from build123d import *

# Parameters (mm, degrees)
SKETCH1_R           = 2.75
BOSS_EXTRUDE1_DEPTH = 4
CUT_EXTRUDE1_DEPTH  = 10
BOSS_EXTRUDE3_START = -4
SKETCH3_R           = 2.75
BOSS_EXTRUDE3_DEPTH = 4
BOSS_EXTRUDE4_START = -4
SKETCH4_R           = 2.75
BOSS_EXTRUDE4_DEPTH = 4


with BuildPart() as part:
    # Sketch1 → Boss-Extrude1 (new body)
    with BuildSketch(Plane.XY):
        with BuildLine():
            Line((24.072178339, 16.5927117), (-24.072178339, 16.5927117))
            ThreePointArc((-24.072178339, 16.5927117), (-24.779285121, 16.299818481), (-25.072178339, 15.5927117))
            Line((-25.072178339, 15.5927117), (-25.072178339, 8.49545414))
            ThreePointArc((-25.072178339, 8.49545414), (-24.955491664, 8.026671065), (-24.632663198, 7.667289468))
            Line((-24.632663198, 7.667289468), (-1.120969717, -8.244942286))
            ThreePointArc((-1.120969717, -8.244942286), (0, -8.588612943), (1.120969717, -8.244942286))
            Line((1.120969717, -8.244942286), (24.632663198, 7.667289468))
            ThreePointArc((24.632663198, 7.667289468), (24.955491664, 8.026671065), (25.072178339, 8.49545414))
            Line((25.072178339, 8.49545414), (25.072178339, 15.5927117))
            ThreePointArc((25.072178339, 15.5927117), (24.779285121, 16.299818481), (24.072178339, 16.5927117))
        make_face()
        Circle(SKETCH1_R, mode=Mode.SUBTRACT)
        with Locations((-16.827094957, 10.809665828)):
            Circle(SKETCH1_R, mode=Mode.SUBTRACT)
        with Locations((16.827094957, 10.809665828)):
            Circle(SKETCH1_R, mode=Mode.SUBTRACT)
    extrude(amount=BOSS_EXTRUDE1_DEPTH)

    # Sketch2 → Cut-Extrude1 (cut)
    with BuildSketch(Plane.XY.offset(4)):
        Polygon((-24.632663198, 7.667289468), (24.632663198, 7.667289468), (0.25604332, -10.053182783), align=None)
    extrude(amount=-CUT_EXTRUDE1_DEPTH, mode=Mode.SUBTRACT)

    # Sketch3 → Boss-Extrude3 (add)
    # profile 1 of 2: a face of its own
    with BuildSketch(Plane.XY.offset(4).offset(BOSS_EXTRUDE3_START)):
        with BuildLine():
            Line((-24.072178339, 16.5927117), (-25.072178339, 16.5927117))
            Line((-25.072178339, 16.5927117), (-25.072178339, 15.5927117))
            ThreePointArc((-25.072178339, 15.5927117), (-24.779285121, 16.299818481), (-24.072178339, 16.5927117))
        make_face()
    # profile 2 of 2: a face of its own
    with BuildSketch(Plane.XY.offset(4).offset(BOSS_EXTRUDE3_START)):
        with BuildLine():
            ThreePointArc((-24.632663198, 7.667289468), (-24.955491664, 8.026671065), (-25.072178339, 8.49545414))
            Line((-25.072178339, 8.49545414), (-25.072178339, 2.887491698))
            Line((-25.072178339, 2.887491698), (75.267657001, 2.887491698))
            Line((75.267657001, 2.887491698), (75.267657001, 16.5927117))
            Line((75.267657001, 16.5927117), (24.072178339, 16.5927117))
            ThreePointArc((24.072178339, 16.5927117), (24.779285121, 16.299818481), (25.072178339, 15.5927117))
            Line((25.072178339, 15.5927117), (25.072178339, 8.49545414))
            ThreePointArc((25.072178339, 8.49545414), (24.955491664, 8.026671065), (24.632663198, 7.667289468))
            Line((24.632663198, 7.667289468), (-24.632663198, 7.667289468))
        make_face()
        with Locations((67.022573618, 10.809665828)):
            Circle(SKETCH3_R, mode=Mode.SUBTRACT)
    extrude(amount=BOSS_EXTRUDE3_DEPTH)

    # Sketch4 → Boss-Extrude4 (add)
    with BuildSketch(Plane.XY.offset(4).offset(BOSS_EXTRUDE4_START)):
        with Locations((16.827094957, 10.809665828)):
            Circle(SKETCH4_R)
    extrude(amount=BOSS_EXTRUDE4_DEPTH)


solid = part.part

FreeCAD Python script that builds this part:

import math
import FreeCAD as App
import Part
import Sketcher

V = App.Vector


def add_polygon(sketch, points):
    """Adds a closed chain of lines whose ends are joined by coincident constraints."""
    first, n = sketch.GeometryCount, len(points)
    for a, b in zip(points, points[1:] + points[:1]):
        sketch.addGeometry(Part.LineSegment(App.Vector(*a, 0), App.Vector(*b, 0)), False)
    for i in range(n):
        sketch.addConstraint(Sketcher.Constraint("Coincident", first + i, 2, first + (i + 1) % n, 1))

doc = App.newDocument("Part")
body = doc.addObject("PartDesign::Body", "Body")

sketch1 = doc.addObject("Sketcher::SketchObject", "Sketch")
body.addObject(sketch1)
sketch1.AttachmentSupport = (doc.XY_Plane, [""])
sketch1.MapMode = "FlatFace"
sketch1.addGeometry([
    Part.LineSegment(V(24.1, 16.6, 0), V(-24.1, 16.6, 0)),
    Part.ArcOfCircle(Part.Circle(V(-24.1, 15.6, 0), V(0, 0, 1), 1), math.radians(90), math.radians(180)),
    Part.LineSegment(V(-25.1, 15.6, 0), V(-25.1, 8.5, 0)),
    Part.ArcOfCircle(Part.Circle(V(-24.1, 8.5, 0), V(0, 0, 1), 1), math.radians(180), math.radians(236)),
    Part.LineSegment(V(-24.6, 7.7, 0), V(-1.1, -8.2, 0)),
    Part.ArcOfCircle(Part.Circle(V(0, -6.6, 0), V(0, 0, 1), 2), math.radians(-124), math.radians(-56)),
    Part.LineSegment(V(1.1, -8.2, 0), V(24.6, 7.7, 0)),
    Part.ArcOfCircle(Part.Circle(V(24.1, 8.5, 0), V(0, 0, 1), 1), math.radians(-56), math.radians(0)),
    Part.LineSegment(V(25.1, 8.5, 0), V(25.1, 15.6, 0)),
    Part.ArcOfCircle(Part.Circle(V(24.1, 15.6, 0), V(0, 0, 1), 1), math.radians(0), math.radians(90)),
    Part.Circle(V(0, 0, 0), V(0, 0, 1), 2.8),
    Part.Circle(V(-16.8, 10.8, 0), V(0, 0, 1), 2.8),
    Part.Circle(V(16.8, 10.8, 0), V(0, 0, 1), 2.8),
], False)
sketch1.addConstraint([
    Sketcher.Constraint("Tangent", 0, 2, 1, 1),
    Sketcher.Constraint("Tangent", 1, 2, 2, 1),
    Sketcher.Constraint("Tangent", 2, 2, 3, 1),
    Sketcher.Constraint("Tangent", 3, 2, 4, 1),
    Sketcher.Constraint("Tangent", 4, 2, 5, 1),
    Sketcher.Constraint("Tangent", 5, 2, 6, 1),
    Sketcher.Constraint("Tangent", 6, 2, 7, 1),
    Sketcher.Constraint("Tangent", 7, 2, 8, 1),
    Sketcher.Constraint("Tangent", 8, 2, 9, 1),
    Sketcher.Constraint("Tangent", 9, 2, 0, 1),
    Sketcher.Constraint("Horizontal", 0),
    Sketcher.Constraint("Vertical", 2),
    Sketcher.Constraint("Vertical", 8),
    Sketcher.Constraint("Coincident", 10, 3, -1, 1),
    Sketcher.Constraint("Equal", 1, 3),
    Sketcher.Constraint("Equal", 3, 7),
    Sketcher.Constraint("Equal", 7, 9),
    Sketcher.Constraint("Equal", 10, 11),
    Sketcher.Constraint("Equal", 11, 12),
    Sketcher.Constraint("Symmetric", 3, 3, 7, 3, -2),
    Sketcher.Constraint("Symmetric", 11, 3, 12, 3, -2),
    Sketcher.Constraint("PointOnObject", 5, 3, -2),
    Sketcher.Constraint("Radius", 1, 1.0),
    Sketcher.Constraint("Radius", 5, 2.0),
    Sketcher.Constraint("Diameter", 10, 5.5),
    Sketcher.Constraint("Distance", 4, 28.390119),
    Sketcher.Constraint("DistanceX", 0, 2, 0, 1, 48.144357),
    Sketcher.Constraint("DistanceY", 2, 2, 2, 1, 7.097258),
    Sketcher.Constraint("DistanceY", -1, 1, 1, 3, 15.592712),
    Sketcher.Constraint("DistanceY", 3, 3, 11, 3, 2.314212),
    Sketcher.Constraint("DistanceX", 11, 3, 12, 3, 33.65419),
])
pad1 = doc.addObject("PartDesign::Pad", "Pad")
body.addObject(pad1)
pad1.Profile = sketch1
pad1.Length = 4

sketch2 = doc.addObject("Sketcher::SketchObject", "Sketch001")
body.addObject(sketch2)
sketch2.AttachmentSupport = (doc.XY_Plane, [""])
sketch2.MapMode = "FlatFace"
sketch2.AttachmentOffset = App.Placement(V(0, 0, 4), App.Rotation())
add_polygon(sketch2, [(25, 8), (-25, 8), (0, -10)])
sketch2.addConstraint([
    Sketcher.Constraint("Horizontal", 0),
    Sketcher.Constraint("DistanceX", 0, 2, 0, 1, 49.265326),
    Sketcher.Constraint("DistanceY", -1, 1, 0, 2, 7.667289),
    Sketcher.Constraint("DistanceX", 1, 2, 2, 2, 24.37662),
    Sketcher.Constraint("Distance", 1, 30.552624),
    Sketcher.Constraint("DistanceX", 0, 2, -1, 1, 24.632663),
])
pocket1 = doc.addObject("PartDesign::Pocket", "Pocket")
body.addObject(pocket1)
pocket1.Profile = sketch2
pocket1.Length = 10

sketch3 = doc.addObject("Sketcher::SketchObject", "Sketch002")
body.addObject(sketch3)
sketch3.AttachmentSupport = (doc.XY_Plane, [""])
sketch3.MapMode = "FlatFace"
sketch3.addGeometry([
    Part.LineSegment(V(-24.1, 16.6, 0), V(-25.1, 16.6, 0)),
    Part.LineSegment(V(-25.1, 16.6, 0), V(-25.1, 15.6, 0)),
    Part.ArcOfCircle(Part.Circle(V(-24.1, 15.6, 0), V(0, 0, 1), 1), math.radians(90), math.radians(180)),
    Part.ArcOfCircle(Part.Circle(V(-24.1, 8.5, 0), V(0, 0, 1), 1), math.radians(180), math.radians(236)),
    Part.LineSegment(V(-25.1, 8.5, 0), V(-25.1, 2.9, 0)),
    Part.LineSegment(V(-25.1, 2.9, 0), V(75.3, 2.9, 0)),
    Part.LineSegment(V(75.3, 2.9, 0), V(75.3, 16.6, 0)),
    Part.LineSegment(V(75.3, 16.6, 0), V(24.1, 16.6, 0)),
    Part.ArcOfCircle(Part.Circle(V(24.1, 15.6, 0), V(0, 0, 1), 1), math.radians(0), math.radians(90)),
    Part.LineSegment(V(25.1, 15.6, 0), V(25.1, 8.5, 0)),
    Part.ArcOfCircle(Part.Circle(V(24.1, 8.5, 0), V(0, 0, 1), 1), math.radians(-56), math.radians(0)),
    Part.LineSegment(V(24.6, 7.7, 0), V(-24.6, 7.7, 0)),
    Part.Circle(V(67, 10.8, 0), V(0, 0, 1), 2.8),
], False)
sketch3.addConstraint([
    Sketcher.Constraint("Coincident", 0, 2, 1, 1),
    Sketcher.Constraint("Tangent", 1, 2, 2, 2),
    Sketcher.Constraint("Tangent", 2, 1, 0, 1),
    Sketcher.Constraint("Tangent", 3, 1, 4, 1),
    Sketcher.Constraint("Coincident", 4, 2, 5, 1),
    Sketcher.Constraint("Coincident", 5, 2, 6, 1),
    Sketcher.Constraint("Coincident", 6, 2, 7, 1),
    Sketcher.Constraint("Tangent", 7, 2, 8, 2),
    Sketcher.Constraint("Tangent", 8, 1, 9, 1),
    Sketcher.Constraint("Tangent", 9, 2, 10, 2),
    Sketcher.Constraint("Coincident", 10, 1, 11, 1),
    Sketcher.Constraint("Coincident", 11, 2, 3, 2),
    Sketcher.Constraint("Horizontal", 0),
    Sketcher.Constraint("Vertical", 1),
    Sketcher.Constraint("Vertical", 4),
    Sketcher.Constraint("Horizontal", 5),
    Sketcher.Constraint("Vertical", 6),
    Sketcher.Constraint("Horizontal", 7),
    Sketcher.Constraint("Vertical", 9),
    Sketcher.Constraint("Horizontal", 11),
    Sketcher.Constraint("Equal", 2, 3),
    Sketcher.Constraint("Equal", 3, 8),
    Sketcher.Constraint("Equal", 8, 10),
    Sketcher.Constraint("Symmetric", 2, 3, 8, 3, -2),
    Sketcher.Constraint("Symmetric", 3, 3, 10, 3, -2),
    Sketcher.Constraint("Radius", 2, 1.0),
    Sketcher.Constraint("Diameter", 12, 5.5),
    Sketcher.Constraint("DistanceX", 7, 2, 7, 1, 51.195479),
    Sketcher.Constraint("DistanceY", 6, 1, 6, 2, 13.70522),
    Sketcher.Constraint("DistanceX", 5, 1, 5, 2, 100.339835),
    Sketcher.Constraint("DistanceX", 11, 2, 11, 1, 49.265326),
    Sketcher.Constraint("DistanceY", 4, 2, 4, 1, 5.607962),
    Sketcher.Constraint("DistanceY", -1, 1, 2, 3, 15.592712),
    Sketcher.Constraint("DistanceY", 10, 3, 12, 3, 2.314212),
    Sketcher.Constraint("DistanceX", 3, 3, 12, 3, 91.094752),
])
pad2 = doc.addObject("PartDesign::Pad", "Pad001")
body.addObject(pad2)
pad2.Profile = sketch3
pad2.Length = 4

sketch4 = doc.addObject("Sketcher::SketchObject", "Sketch003")
body.addObject(sketch4)
sketch4.AttachmentSupport = (doc.XY_Plane, [""])
sketch4.MapMode = "FlatFace"
sketch4.addGeometry(Part.Circle(V(16.8, 10.8, 0), V(0, 0, 1), 2.8), False)
sketch4.addConstraint([
    Sketcher.Constraint("Diameter", 0, 5.5),
    Sketcher.Constraint("DistanceX", -1, 1, 0, 3, 16.827095),
    Sketcher.Constraint("DistanceY", -1, 1, 0, 3, 10.809666),
])
pad3 = doc.addObject("PartDesign::Pad", "Pad002")
body.addObject(pad3)
pad3.Profile = sketch4
pad3.Length = 4

doc.recompute()
